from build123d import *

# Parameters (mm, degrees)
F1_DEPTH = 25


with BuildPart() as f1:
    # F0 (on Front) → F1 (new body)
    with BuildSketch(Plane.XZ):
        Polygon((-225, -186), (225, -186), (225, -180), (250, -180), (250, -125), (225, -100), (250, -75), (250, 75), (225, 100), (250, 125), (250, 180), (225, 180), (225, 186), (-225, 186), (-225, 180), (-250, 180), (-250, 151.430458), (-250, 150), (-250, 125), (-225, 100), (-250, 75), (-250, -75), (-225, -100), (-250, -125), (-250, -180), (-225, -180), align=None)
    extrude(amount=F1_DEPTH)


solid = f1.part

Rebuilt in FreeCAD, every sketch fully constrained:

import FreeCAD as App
import Part
import Sketcher
from FreeCAD import Vector


def add_polygon(sketch, points):
    """Adds a closed chain of lines whose ends are joined by coincident constraints."""
    first, n = sketch.GeometryCount, len(points)
    for a, b in zip(points, points[1:] + points[:1]):
        sketch.addGeometry(Part.LineSegment(App.Vector(*a, 0), App.Vector(*b, 0)), False)
    for i in range(n):
        sketch.addConstraint(Sketcher.Constraint("Coincident", first + i, 2, first + (i + 1) % n, 1))

doc = App.newDocument("Part")
body = doc.addObject("PartDesign::Body", "Body")

# Sketch on XZ plane
sketch1 = doc.addObject("Sketcher::SketchObject", "Sketch")
body.addObject(sketch1)
sketch1.AttachmentSupport = (doc.XZ_Plane, [""])
sketch1.MapMode = "FlatFace"
add_polygon(sketch1, [(-225, -186), (225, -186), (225, -180), (250, -180), (250, -125), (225, -100), (250, -75), (250, 75), (225, 100), (250, 125), (250, 180), (225, 180), (225, 186), (-225, 186), (-225, 180), (-250, 180), (-250, 125), (-225, 100), (-250, 75), (-250, -75), (-225, -100), (-250, -125), (-250, -180), (-225, -180)])  # lines 0-23
sketch1.addConstraint(Sketcher.Constraint("Horizontal", 0))
sketch1.addConstraint(Sketcher.Constraint("Vertical", 1))
sketch1.addConstraint(Sketcher.Constraint("Horizontal", 2))
sketch1.addConstraint(Sketcher.Constraint("Vertical", 3))
sketch1.addConstraint(Sketcher.Constraint("Vertical", 6))
sketch1.addConstraint(Sketcher.Constraint("Vertical", 9))
sketch1.addConstraint(Sketcher.Constraint("Horizontal", 10))
sketch1.addConstraint(Sketcher.Constraint("Vertical", 11))
sketch1.addConstraint(Sketcher.Constraint("Horizontal", 12))
sketch1.addConstraint(Sketcher.Constraint("Vertical", 13))
sketch1.addConstraint(Sketcher.Constraint("Horizontal", 14))
sketch1.addConstraint(Sketcher.Constraint("Vertical", 15))
sketch1.addConstraint(Sketcher.Constraint("Vertical", 18))
sketch1.addConstraint(Sketcher.Constraint("Vertical", 21))
sketch1.addConstraint(Sketcher.Constraint("Horizontal", 22))
sketch1.addConstraint(Sketcher.Constraint("Vertical", 23))
sketch1.addConstraint(Sketcher.Constraint("Symmetric", 0, 2, 12, 2, -1, 1))
sketch1.addConstraint(Sketcher.Constraint("Symmetric", 2, 2, 14, 2, -1, 1))
sketch1.addConstraint(Sketcher.Constraint("Symmetric", 4, 2, 16, 2, -1, 1))
sketch1.addConstraint(Sketcher.Constraint("Symmetric", 5, 2, 17, 2, -1, 1))
sketch1.addConstraint(Sketcher.Constraint("Symmetric", 7, 2, 19, 2, -1, 1))
sketch1.addConstraint(Sketcher.Constraint("Symmetric", 8, 2, 20, 2, -1, 1))
sketch1.addConstraint(Sketcher.Constraint("Symmetric", 10, 2, 22, 2, -1, 1))
sketch1.addConstraint(Sketcher.Constraint("Symmetric", 10, 2, 13, 2, -2))
sketch1.addConstraint(Sketcher.Constraint("Symmetric", 8, 2, 15, 2, -2))
sketch1.addConstraint(Sketcher.Constraint("Symmetric", 7, 2, 16, 2, -2))
sketch1.addConstraint(Sketcher.Constraint("Perpendicular", 4, 5))
sketch1.addConstraint(Sketcher.Constraint("Perpendicular", 5, 7))
sketch1.addConstraint(Sketcher.Constraint("Perpendicular", 7, 8))
sketch1.addConstraint(Sketcher.Constraint("Perpendicular", 8, 16))
sketch1.addConstraint(Sketcher.Constraint("Perpendicular", 17, 19))
sketch1.addConstraint(Sketcher.Constraint("Vertical", 1, 2, 4, 2))
sketch1.addConstraint(Sketcher.Constraint("Vertical", 3, 2, 5, 2))
sketch1.addConstraint(Sketcher.Constraint("DistanceX", 0, 1, 0, 2, 450.0))
sketch1.addConstraint(Sketcher.Constraint("DistanceX", 2, 1, 2, 2, 25.0))
sketch1.addConstraint(Sketcher.Constraint("DistanceY", 1, 1, 1, 2, 6.0))
sketch1.addConstraint(Sketcher.Constraint("DistanceY", 3, 1, 3, 2, 55.0))
sketch1.addConstraint(Sketcher.Constraint("DistanceY", 6, 1, 6, 2, 150.0))
pad1 = doc.addObject("PartDesign::Pad", "Pad")
body.addObject(pad1)
pad1.Profile = sketch1
pad1.Length = 25

doc.recompute()
